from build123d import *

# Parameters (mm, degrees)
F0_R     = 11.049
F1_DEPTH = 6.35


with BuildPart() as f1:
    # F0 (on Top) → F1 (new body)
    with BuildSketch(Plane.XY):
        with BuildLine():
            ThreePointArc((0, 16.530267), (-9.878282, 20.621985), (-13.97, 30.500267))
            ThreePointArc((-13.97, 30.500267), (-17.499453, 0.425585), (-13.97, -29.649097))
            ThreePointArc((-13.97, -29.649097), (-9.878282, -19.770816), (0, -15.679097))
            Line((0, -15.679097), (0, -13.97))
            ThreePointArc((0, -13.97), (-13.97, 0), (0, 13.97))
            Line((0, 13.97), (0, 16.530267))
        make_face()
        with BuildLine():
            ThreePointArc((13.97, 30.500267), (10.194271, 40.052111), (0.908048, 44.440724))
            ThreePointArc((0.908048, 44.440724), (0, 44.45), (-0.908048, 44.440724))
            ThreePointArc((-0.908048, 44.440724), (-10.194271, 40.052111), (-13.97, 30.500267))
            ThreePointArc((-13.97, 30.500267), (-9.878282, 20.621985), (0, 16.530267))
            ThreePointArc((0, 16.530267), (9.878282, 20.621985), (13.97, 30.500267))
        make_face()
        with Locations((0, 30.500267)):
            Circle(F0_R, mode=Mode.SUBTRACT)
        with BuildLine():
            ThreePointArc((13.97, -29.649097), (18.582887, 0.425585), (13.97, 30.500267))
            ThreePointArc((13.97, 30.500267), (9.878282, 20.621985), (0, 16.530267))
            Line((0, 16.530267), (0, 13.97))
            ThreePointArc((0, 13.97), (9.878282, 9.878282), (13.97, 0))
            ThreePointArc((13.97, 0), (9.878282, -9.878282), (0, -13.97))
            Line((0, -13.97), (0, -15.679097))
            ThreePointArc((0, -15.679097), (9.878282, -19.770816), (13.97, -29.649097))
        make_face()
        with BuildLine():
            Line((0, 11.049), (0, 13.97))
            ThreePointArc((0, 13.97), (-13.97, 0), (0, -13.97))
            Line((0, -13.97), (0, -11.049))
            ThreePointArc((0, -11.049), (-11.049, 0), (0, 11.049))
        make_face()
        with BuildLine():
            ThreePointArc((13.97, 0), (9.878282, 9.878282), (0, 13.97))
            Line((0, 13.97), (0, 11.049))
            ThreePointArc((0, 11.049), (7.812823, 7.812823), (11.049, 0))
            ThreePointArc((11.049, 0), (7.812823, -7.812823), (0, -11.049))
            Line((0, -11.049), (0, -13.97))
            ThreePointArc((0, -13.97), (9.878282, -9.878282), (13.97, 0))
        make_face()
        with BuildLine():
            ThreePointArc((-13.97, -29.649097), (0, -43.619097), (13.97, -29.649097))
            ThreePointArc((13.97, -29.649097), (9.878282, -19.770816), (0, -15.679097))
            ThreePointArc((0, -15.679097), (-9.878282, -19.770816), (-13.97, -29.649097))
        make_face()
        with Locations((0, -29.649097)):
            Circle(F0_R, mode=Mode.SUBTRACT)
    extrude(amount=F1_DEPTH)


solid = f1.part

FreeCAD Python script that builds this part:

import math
import FreeCAD as App
import Part
import Sketcher

V = App.Vector
Q = App.Units.Quantity

doc = App.newDocument("Part")
body = doc.addObject("PartDesign::Body", "Body")

sketch1 = doc.addObject("Sketcher::SketchObject", "Sketch")
body.addObject(sketch1)
sketch1.AttachmentSupport = (doc.XY_Plane, [""])
sketch1.MapMode = "FlatFace"
sketch1.addGeometry([
    Part.ArcOfCircle(Part.Circle(V(112.399364, 0.425585, 0), V(0, 0, 1), 129.898817), math.radians(166.613193), math.radians(193.386807)),
    Part.ArcOfCircle(Part.Circle(V(0, -29.649097, 0), V(0, 0, 1), 13.97), math.radians(180), math.radians(360)),
    Part.ArcOfCircle(Part.Circle(V(-81.762648, 0.425585, 0), V(0, 0, 1), 100.345535), math.radians(-17.440259), math.radians(17.440259)),
    Part.ArcOfCircle(Part.Circle(V(-0.000001, 30.500266, 0), V(0, 0, 1), 13.970001), math.radians(0.000005), math.radians(86.273151)),
    Part.ArcOfCircle(Part.Circle(V(0, -0.000044, 0), V(0, 0, 1), 44.450044), math.radians(88.829451), math.radians(91.170549)),
    Part.ArcOfCircle(Part.Circle(V(0.000001, 30.500266, 0), V(0, 0, 1), 13.970001), math.radians(93.726849), math.radians(179.999995)),
    Part.Circle(V(0, -29.649097, 0), V(0, 0, 1), 11.049),
    Part.ArcOfCircle(Part.Circle(V(0, 0, 0), V(0, 0, 1), 11.049), math.radians(90), math.radians(270)),
    Part.ArcOfCircle(Part.Circle(V(0.000001, 0.000001, 0), V(0, 0, 1), 11.048999), math.radians(-0.000003), math.radians(90.000003)),
    Part.ArcOfCircle(Part.Circle(V(0.000001, -0.000001, 0), V(0, 0, 1), 11.048999), math.radians(-90.000003), math.radians(0.000003)),
    Part.Circle(V(0, 30.500267, 0), V(0, 0, 1), 11.049),
], False)
sketch1.addConstraint([
    Sketcher.Constraint("Coincident", 0, 2, 1, 1),
    Sketcher.Constraint("Coincident", 1, 2, 2, 1),
    Sketcher.Constraint("Coincident", 2, 2, 3, 1),
    Sketcher.Constraint("Coincident", 3, 2, 4, 1),
    Sketcher.Constraint("Coincident", 4, 2, 5, 1),
    Sketcher.Constraint("Coincident", 5, 2, 0, 1),
    Sketcher.Constraint("Tangent", 7, 1, 8, 2),
    Sketcher.Constraint("Tangent", 8, 1, 9, 2),
    Sketcher.Constraint("Tangent", 9, 1, 7, 2),
    Sketcher.Constraint("Coincident", 7, 3, -1, 1),
    Sketcher.Constraint("Coincident", 5, 3, 3, 3),
    Sketcher.Constraint("Coincident", 6, 3, 1, 3),
    Sketcher.Constraint("Coincident", 10, 3, 3, 3),
    Sketcher.Constraint("Equal", 1, 3),
    Sketcher.Constraint("Equal", 3, 5),
    Sketcher.Constraint("Equal", 6, 7),
    Sketcher.Constraint("Equal", 9, 10),
    Sketcher.Constraint("Symmetric", 0, 2, 1, 2, -2),
    Sketcher.Constraint("Symmetric", 3, 2, 4, 2, -2),
    Sketcher.Constraint("PointOnObject", 7, 1, -2),
    Sketcher.Constraint("PointOnObject", 8, 1, -1),
    Sketcher.Constraint("PointOnObject", 9, 1, -2),
    Sketcher.Constraint("Horizontal", 0, 3, 2, 3),
    Sketcher.Constraint("Horizontal", 6, 3, 0, 2),
    Sketcher.Constraint("Horizontal", 10, 3, 2, 2),
    Sketcher.Constraint("Diameter", 6, Q("0.87 in")),
    Sketcher.Constraint("Radius", 1, Q("0.55 in")),
    Sketcher.Constraint("Radius", 0, 129.898817),
    Sketcher.Constraint("Radius", 2, 100.345535),
    Sketcher.Constraint("Radius", 4, 44.450044),
    Sketcher.Constraint("DistanceX", 4, 2, 3, 2, Q("0.0714998 in")),
    Sketcher.Constraint("DistanceX", 2, 3, 0, 3, 194.162011),
    Sketcher.Constraint("DistanceY", -1, 1, 0, 3, 0.425585),
])
pad1 = doc.addObject("PartDesign::Pad", "Pad")
body.addObject(pad1)
pad1.Profile = sketch1
pad1.Length = Q("0.25 in")

doc.recompute()
